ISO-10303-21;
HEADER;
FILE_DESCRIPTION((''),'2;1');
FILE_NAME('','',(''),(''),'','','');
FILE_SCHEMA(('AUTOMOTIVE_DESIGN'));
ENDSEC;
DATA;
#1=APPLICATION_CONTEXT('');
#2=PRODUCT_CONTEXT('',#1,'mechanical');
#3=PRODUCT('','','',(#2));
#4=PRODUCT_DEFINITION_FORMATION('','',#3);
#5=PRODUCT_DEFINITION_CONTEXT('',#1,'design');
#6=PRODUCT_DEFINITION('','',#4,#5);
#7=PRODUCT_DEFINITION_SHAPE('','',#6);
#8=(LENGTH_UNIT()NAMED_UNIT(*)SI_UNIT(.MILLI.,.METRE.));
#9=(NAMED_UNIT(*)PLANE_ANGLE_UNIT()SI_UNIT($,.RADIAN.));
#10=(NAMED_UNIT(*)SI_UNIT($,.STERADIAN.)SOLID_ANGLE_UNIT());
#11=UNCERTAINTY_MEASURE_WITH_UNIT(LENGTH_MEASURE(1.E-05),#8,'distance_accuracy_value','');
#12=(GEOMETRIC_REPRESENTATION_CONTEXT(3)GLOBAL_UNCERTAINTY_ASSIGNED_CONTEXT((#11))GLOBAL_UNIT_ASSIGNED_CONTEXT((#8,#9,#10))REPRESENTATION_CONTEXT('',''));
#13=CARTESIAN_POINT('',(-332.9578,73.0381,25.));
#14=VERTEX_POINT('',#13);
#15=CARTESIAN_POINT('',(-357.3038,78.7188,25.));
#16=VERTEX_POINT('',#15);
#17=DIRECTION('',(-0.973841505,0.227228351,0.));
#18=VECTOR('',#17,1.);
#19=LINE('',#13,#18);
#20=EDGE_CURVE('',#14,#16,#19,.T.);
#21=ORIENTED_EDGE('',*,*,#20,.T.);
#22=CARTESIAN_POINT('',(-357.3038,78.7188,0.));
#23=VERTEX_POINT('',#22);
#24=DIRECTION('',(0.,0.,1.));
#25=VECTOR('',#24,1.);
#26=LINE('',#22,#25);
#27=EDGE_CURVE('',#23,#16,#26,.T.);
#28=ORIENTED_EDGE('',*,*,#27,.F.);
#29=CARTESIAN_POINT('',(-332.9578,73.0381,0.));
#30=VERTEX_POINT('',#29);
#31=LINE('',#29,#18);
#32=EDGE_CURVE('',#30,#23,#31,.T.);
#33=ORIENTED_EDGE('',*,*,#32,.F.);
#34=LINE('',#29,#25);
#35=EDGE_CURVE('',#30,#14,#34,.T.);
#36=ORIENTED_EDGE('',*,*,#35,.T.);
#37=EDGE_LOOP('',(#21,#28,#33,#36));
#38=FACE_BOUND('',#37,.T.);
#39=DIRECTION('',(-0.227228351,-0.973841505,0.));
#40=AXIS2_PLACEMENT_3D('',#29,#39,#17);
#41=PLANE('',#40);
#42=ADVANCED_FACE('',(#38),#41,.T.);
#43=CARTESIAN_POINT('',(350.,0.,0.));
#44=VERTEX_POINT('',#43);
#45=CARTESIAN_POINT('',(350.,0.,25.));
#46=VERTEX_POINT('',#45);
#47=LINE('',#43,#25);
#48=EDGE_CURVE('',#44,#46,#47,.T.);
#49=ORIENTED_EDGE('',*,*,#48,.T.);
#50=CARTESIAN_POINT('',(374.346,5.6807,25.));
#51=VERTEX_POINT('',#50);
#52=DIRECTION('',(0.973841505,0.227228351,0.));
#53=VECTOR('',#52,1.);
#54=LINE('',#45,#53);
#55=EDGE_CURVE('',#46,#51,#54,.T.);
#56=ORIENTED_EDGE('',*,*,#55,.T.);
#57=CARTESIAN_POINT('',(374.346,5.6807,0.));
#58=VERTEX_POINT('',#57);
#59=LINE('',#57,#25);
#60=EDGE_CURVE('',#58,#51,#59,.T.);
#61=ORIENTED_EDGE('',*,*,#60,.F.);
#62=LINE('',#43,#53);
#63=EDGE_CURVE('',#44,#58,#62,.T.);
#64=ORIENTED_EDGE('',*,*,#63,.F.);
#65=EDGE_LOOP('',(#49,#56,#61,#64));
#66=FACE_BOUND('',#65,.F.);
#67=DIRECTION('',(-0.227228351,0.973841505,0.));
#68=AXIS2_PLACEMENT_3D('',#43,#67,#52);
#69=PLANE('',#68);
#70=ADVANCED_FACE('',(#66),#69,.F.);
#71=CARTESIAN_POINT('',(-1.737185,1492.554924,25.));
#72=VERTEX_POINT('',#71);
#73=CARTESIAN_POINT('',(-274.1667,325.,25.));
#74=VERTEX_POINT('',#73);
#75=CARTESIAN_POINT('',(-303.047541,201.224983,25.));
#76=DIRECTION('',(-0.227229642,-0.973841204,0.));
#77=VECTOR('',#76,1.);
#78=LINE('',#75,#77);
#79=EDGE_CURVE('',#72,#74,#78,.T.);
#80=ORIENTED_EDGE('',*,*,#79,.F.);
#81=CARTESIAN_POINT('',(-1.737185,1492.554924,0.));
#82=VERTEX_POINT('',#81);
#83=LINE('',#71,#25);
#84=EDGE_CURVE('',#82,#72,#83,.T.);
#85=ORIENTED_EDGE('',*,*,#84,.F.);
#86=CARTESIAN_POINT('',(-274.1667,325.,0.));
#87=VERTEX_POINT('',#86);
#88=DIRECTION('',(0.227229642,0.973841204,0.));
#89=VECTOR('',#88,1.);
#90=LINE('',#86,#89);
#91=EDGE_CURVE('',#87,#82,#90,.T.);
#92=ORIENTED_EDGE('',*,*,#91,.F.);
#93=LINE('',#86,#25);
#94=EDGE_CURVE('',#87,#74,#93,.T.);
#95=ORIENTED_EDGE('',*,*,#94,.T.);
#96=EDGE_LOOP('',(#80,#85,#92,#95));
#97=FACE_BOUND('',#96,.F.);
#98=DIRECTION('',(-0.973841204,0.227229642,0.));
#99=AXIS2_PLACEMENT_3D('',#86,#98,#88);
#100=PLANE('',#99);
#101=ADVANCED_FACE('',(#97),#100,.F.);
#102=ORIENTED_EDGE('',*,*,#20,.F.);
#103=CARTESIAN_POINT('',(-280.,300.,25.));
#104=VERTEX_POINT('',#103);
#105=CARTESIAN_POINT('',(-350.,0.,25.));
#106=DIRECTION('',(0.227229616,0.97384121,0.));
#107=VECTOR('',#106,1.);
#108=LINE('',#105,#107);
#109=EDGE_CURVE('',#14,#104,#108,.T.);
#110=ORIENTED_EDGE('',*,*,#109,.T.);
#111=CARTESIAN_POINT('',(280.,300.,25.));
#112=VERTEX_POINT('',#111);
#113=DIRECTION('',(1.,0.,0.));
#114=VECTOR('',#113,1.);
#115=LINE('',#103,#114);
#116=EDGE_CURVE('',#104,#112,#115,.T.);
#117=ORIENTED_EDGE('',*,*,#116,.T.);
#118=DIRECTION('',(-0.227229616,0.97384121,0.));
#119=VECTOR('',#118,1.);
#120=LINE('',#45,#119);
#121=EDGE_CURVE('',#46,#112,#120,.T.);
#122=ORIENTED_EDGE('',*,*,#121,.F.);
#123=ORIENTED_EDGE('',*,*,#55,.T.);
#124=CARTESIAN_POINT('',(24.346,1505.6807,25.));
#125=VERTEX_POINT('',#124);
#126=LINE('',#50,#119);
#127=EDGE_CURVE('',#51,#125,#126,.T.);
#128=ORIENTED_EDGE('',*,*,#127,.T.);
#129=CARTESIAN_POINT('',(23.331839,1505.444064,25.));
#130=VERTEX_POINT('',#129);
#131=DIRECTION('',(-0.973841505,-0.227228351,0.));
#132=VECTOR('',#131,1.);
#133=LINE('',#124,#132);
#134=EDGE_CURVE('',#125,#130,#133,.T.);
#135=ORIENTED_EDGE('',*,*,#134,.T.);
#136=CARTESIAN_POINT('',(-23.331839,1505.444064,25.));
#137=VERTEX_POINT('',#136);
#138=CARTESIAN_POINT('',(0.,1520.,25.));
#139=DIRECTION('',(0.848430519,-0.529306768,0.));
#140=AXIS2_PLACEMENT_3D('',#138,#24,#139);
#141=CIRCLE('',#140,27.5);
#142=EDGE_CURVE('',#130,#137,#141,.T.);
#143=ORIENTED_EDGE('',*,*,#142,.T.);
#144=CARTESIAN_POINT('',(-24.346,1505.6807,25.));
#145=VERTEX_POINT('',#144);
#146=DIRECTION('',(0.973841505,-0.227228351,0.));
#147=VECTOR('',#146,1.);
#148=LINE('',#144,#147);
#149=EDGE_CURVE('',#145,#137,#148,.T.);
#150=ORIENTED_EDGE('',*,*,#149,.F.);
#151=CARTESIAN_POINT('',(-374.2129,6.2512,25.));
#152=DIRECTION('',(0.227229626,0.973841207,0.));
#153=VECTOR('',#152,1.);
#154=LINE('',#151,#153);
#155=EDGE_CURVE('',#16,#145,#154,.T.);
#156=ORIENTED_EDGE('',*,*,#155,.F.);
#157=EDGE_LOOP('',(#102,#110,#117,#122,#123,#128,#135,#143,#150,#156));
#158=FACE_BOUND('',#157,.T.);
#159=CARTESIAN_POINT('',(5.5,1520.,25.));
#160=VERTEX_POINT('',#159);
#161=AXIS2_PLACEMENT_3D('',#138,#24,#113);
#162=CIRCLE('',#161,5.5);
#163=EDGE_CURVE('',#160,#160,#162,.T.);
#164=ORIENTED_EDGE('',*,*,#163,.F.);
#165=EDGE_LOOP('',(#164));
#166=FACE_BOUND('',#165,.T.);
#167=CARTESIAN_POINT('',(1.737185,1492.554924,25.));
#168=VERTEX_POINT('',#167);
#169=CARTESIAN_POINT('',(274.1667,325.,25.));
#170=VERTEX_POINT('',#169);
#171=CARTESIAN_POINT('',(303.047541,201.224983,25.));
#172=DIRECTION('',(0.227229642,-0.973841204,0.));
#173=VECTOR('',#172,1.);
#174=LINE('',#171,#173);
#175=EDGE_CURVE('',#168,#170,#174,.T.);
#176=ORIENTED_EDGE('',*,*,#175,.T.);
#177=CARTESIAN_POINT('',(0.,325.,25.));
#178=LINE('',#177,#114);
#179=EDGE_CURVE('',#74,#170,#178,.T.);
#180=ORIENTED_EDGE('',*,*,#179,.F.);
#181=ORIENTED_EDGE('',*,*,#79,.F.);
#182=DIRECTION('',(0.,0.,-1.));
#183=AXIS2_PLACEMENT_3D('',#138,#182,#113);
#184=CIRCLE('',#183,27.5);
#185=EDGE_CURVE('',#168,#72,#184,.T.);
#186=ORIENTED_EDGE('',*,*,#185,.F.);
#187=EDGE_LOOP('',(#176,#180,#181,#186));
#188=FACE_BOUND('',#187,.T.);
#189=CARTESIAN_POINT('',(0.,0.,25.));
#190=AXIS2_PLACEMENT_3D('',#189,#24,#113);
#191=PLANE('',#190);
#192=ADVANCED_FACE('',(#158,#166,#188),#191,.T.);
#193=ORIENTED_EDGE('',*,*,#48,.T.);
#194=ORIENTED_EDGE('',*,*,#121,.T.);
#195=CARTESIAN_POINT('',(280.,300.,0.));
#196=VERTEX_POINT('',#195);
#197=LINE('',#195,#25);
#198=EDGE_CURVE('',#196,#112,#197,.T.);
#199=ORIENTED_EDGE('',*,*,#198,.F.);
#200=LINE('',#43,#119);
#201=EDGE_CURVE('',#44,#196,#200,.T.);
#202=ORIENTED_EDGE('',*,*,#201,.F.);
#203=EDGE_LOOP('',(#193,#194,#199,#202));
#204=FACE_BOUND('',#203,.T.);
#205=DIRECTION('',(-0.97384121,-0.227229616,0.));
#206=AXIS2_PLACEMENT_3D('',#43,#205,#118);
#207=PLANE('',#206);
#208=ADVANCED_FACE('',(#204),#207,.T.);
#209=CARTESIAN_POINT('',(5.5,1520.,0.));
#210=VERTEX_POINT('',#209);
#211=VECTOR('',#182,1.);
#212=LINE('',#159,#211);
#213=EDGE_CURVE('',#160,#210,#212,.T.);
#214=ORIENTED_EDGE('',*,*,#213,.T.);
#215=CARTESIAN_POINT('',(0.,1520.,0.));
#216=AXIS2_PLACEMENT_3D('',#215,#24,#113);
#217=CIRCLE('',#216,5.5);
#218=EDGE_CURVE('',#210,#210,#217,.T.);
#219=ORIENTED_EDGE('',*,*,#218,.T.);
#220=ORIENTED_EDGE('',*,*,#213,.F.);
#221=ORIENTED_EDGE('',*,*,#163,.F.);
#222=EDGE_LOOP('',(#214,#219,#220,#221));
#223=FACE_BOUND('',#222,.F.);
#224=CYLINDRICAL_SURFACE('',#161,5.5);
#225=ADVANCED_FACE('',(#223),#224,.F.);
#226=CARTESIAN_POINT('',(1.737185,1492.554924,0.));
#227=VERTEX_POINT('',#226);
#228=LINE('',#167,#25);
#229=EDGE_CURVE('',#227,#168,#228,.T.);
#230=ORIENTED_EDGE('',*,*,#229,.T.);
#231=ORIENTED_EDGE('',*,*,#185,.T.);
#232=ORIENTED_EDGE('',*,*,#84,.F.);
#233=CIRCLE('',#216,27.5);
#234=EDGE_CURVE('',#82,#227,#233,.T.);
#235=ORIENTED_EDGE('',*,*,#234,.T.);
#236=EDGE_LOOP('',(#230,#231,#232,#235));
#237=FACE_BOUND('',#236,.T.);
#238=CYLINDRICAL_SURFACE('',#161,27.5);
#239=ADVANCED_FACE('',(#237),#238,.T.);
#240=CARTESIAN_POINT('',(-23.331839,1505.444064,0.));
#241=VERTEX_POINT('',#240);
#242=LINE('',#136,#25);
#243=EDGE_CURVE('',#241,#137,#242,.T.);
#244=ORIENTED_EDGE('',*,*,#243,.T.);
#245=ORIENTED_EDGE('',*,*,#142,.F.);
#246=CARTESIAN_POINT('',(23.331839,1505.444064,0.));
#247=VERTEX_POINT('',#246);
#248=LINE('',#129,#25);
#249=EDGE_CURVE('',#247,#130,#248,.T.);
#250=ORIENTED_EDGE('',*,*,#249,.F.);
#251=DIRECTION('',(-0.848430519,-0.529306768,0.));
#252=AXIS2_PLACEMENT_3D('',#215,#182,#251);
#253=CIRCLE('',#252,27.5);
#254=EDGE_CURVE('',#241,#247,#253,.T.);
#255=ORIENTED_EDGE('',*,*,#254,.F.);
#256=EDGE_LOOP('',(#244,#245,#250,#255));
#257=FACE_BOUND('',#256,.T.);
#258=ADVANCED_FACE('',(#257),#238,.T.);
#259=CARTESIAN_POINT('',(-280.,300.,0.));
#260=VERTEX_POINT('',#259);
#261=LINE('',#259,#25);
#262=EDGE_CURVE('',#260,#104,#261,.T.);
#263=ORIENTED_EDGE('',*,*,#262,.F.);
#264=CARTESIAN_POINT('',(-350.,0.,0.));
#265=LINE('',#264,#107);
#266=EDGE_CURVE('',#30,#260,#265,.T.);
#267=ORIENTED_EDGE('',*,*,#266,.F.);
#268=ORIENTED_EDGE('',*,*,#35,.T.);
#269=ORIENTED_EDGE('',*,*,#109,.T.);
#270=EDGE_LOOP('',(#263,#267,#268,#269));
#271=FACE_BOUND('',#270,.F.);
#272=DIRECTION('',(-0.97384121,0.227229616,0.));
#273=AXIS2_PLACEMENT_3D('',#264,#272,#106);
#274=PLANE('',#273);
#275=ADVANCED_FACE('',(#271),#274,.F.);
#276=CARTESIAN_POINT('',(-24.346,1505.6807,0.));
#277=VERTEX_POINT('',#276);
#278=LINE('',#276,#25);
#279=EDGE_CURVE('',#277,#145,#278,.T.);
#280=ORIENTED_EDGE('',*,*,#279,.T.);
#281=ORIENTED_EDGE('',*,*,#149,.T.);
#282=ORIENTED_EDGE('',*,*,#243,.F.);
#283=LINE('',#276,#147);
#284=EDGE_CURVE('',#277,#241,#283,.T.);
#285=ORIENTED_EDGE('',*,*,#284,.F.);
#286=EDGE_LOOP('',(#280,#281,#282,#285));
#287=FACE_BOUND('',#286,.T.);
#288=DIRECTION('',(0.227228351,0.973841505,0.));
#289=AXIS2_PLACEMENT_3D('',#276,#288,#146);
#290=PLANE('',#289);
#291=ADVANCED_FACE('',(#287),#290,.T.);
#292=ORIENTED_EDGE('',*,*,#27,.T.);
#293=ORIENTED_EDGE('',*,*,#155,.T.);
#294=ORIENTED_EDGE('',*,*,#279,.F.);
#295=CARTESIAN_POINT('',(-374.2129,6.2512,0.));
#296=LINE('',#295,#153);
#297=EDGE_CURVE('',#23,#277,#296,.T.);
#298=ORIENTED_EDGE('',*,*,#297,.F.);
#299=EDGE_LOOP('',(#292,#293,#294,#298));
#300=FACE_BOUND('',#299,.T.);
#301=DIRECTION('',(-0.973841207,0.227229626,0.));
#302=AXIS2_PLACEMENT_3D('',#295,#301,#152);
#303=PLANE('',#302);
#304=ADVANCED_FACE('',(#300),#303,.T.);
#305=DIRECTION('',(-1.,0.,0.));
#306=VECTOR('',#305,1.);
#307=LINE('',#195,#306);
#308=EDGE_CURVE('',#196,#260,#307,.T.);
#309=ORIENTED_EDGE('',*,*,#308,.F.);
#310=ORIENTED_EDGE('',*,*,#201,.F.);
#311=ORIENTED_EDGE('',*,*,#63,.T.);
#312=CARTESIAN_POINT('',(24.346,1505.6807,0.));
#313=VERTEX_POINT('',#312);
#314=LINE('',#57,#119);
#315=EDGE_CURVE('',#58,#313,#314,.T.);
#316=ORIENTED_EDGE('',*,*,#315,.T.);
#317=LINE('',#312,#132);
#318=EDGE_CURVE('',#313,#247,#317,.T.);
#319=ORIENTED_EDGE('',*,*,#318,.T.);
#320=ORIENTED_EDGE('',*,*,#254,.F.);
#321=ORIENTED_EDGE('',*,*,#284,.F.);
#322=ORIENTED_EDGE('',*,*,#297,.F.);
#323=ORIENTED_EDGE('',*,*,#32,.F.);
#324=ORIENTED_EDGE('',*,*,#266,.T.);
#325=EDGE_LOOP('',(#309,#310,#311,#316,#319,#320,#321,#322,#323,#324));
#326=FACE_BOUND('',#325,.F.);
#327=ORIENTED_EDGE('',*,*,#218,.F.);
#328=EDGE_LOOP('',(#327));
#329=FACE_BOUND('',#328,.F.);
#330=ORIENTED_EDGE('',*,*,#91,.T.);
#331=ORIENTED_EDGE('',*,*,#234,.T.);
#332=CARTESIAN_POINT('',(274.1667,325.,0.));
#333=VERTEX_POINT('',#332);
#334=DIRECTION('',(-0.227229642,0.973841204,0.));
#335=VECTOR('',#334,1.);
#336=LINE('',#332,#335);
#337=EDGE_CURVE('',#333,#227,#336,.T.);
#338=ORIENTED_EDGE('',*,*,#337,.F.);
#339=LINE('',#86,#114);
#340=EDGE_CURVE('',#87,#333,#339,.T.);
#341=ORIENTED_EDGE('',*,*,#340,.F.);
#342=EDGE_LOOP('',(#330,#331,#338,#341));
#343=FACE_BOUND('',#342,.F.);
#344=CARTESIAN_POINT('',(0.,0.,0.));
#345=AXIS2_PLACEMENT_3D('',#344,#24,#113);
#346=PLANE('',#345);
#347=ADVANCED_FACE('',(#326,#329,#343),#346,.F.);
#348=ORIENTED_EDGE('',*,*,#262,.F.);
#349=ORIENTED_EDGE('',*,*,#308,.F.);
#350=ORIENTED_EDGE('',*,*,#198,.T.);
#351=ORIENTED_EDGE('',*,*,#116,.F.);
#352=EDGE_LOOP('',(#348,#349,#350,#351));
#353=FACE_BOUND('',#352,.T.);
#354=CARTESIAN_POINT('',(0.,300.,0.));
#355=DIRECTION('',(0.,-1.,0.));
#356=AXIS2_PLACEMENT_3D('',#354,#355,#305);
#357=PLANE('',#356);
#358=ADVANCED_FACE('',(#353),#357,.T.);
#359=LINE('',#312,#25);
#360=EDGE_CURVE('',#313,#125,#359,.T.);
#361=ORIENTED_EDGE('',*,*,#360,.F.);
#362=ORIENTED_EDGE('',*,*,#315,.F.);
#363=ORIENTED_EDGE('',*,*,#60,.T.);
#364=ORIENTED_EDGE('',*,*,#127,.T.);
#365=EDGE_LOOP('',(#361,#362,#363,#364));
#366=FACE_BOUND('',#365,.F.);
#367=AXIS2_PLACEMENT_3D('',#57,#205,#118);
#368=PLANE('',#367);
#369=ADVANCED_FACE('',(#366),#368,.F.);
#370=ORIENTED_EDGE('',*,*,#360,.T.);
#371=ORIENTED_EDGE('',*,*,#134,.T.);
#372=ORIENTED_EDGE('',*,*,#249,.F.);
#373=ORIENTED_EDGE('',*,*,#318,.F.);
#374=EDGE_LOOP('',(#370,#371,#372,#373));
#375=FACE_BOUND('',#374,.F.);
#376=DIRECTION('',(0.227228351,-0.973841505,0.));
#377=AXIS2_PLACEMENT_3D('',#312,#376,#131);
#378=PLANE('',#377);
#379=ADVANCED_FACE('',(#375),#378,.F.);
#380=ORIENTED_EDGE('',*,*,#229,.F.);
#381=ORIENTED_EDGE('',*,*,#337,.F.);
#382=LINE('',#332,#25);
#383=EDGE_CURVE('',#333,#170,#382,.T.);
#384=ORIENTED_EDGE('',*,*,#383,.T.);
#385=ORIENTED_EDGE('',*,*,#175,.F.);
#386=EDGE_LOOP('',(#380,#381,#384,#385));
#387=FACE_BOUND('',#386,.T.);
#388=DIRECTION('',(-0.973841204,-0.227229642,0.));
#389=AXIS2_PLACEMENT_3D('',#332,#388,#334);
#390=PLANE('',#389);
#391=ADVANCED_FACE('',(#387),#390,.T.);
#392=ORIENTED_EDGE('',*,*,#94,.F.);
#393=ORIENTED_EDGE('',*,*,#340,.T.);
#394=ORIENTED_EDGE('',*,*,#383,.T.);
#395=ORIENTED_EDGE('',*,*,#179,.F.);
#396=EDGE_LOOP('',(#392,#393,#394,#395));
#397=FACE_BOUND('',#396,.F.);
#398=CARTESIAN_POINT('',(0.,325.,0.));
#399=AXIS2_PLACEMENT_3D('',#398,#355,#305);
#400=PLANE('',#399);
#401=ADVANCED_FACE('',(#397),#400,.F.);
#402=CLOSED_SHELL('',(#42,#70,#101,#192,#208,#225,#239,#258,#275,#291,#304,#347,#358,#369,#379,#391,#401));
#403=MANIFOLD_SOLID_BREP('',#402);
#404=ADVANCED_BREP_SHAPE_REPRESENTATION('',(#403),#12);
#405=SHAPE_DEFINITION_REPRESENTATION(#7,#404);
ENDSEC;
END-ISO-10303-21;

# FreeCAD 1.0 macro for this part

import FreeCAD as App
import Part
import Sketcher

V = App.Vector
Q = App.Units.Quantity

doc = App.newDocument("Part")
body = doc.addObject("PartDesign::Body", "Body")

sketch1 = doc.addObject("Sketcher::SketchObject", "Sketch")
body.addObject(sketch1)
sketch1.AttachmentSupport = (doc.XY_Plane, [""])
sketch1.MapMode = "FlatFace"
sketch1.addGeometry([
    Part.LineSegment(V(-374.2129, 6.2512, 0), V(-350, 0, 0)),
    Part.LineSegment(V(-350, 0, 0), V(-280, 300, 0)),
    Part.LineSegment(V(-280, 300, 0), V(280, 300, 0)),
    Part.LineSegment(V(280, 300, 0), V(350, 0, 0)),
    Part.LineSegment(V(350, 0, 0), V(374.346, 5.6807, 0)),
    Part.LineSegment(V(374.346, 5.6807, 0), V(24.346, 1505.6807, 0)),
    Part.LineSegment(V(24.346, 1505.6807, 0), V(0, 1500, 0)),
    Part.LineSegment(V(0, 1500, 0), V(-24.346, 1505.6807, 0)),
    Part.LineSegment(V(-24.346, 1505.6807, 0), V(-374.2129, 6.2512, 0)),
], False)
sketch1.addConstraint([
    Sketcher.Constraint("Coincident", 0, 2, 1, 1),
    Sketcher.Constraint("Coincident", 1, 2, 2, 1),
    Sketcher.Constraint("Coincident", 2, 2, 3, 1),
    Sketcher.Constraint("Coincident", 3, 2, 4, 1),
    Sketcher.Constraint("Coincident", 4, 2, 5, 1),
    Sketcher.Constraint("Coincident", 5, 2, 6, 1),
    Sketcher.Constraint("Coincident", 6, 2, 7, 1),
    Sketcher.Constraint("Coincident", 7, 2, 8, 1),
    Sketcher.Constraint("Coincident", 8, 2, 0, 1),
    Sketcher.Constraint("Horizontal", 2),
    Sketcher.Constraint("Symmetric", 0, 2, 3, 2, -1, 1),
    Sketcher.Constraint("Symmetric", 5, 2, 7, 2, -2),
    Sketcher.Constraint("PointOnObject", 0, 2, -1),
    Sketcher.Constraint("PointOnObject", 6, 2, -2),
    Sketcher.Constraint("Perpendicular", 3, 4),
    Sketcher.Constraint("Perpendicular", 4, 5),
    Sketcher.Constraint("Perpendicular", 5, 6),
    Sketcher.Constraint("Perpendicular", 1, 7),
    Sketcher.Constraint("Perpendicular", 7, 8),
    Sketcher.Constraint("Equal", 4, 6),
    Sketcher.Constraint("Distance", 4, Q("25 mm")),
    Sketcher.Constraint("DistanceY", -1, 1, 1, 2, Q("300 mm")),
    Sketcher.Constraint("DistanceY", -1, 1, 6, 2, Q("1500 mm")),
    Sketcher.Constraint("DistanceX", 0, 2, 3, 2, Q("700 mm")),
    Sketcher.Constraint("DistanceX", 8, 2, -1, 1, Q("374.213 mm")),
])
pad1 = doc.addObject("PartDesign::Pad", "Pad")
body.addObject(pad1)
pad1.Profile = sketch1
pad1.Length = 25

sketch2 = doc.addObject("Sketcher::SketchObject", "Sketch001")
body.addObject(sketch2)
sketch2.AttachmentSupport = (doc.XY_Plane, [""])
sketch2.MapMode = "FlatFace"
sketch2.addGeometry([
    Part.LineSegment(V(-274.1667, 325, 0), V(274.1667, 325, 0)),
    Part.LineSegment(V(274.1667, 325, 0), V(0, 1500, 0)),
    Part.LineSegment(V(0, 1500, 0), V(-274.1667, 325, 0)),
], False)
sketch2.addConstraint([
    Sketcher.Constraint("Coincident", 0, 2, 1, 1),
    Sketcher.Constraint("Coincident", 1, 2, 2, 1),
    Sketcher.Constraint("Coincident", 2, 2, 0, 1),
    Sketcher.Constraint("Horizontal", 0),
    Sketcher.Constraint("PointOnObject", 1, 2, -2),
    Sketcher.Constraint("Equal", 1, 2),
    Sketcher.Constraint("DistanceY", -1, 1, 1, 2, Q("1500 mm")),
    Sketcher.Constraint("DistanceY", -1, 1, 0, 2, Q("325 mm")),
    Sketcher.Constraint("DistanceX", 0, 1, 0, 2, Q("548.3334 mm")),
])
pocket1 = doc.addObject("PartDesign::Pocket", "Pocket")
body.addObject(pocket1)
pocket1.Profile = sketch2
pocket1.Type = "ThroughAll"
pocket1.Reversed = True

sketch3 = doc.addObject("Sketcher::SketchObject", "Sketch002")
body.addObject(sketch3)
sketch3.AttachmentSupport = (doc.XY_Plane, [""])
sketch3.MapMode = "FlatFace"
sketch3.AttachmentOffset = App.Placement(V(0, 0, 25), App.Rotation())
sketch3.addGeometry([
    Part.Circle(V(0, 1520, 0), V(0, 0, 1), 27.5),
    Part.Circle(V(0, 1520, 0), V(0, 0, 1), 5.5),
], False)
sketch3.addConstraint([
    Sketcher.Constraint("Coincident", 1, 3, 0, 3),
    Sketcher.Constraint("PointOnObject", 0, 3, -2),
    Sketcher.Constraint("Diameter", 0, Q("55 mm")),
    Sketcher.Constraint("Diameter", 1, Q("11 mm")),
    Sketcher.Constraint("DistanceY", -1, 1, 0, 3, Q("1520 mm")),
])
pad2 = doc.addObject("PartDesign::Pad", "Pad001")
body.addObject(pad2)
pad2.Profile = sketch3
pad2.Length = 25
pad2.Reversed = True

sketch4 = doc.addObject("Sketcher::SketchObject", "Sketch003")
body.addObject(sketch4)
sketch4.AttachmentSupport = (doc.XY_Plane, [""])
sketch4.MapMode = "FlatFace"
sketch4.addGeometry([
    Part.LineSegment(V(-374.2129, 6.2512, 0), V(-357.303793, 78.718798, 0)),
    Part.LineSegment(V(-357.3038, 78.7188, 0), V(-332.9578, 73.0381, 0)),
    Part.LineSegment(V(-332.957778, 73.038095, 0), V(-350, 0, 0)),
    Part.LineSegment(V(-350, 0, 0), V(-374.2129, 6.2512, 0)),
], False)
sketch4.addConstraint([
    Sketcher.Constraint("Coincident", 0, 2, 1, 1),
    Sketcher.Constraint("Coincident", 1, 2, 2, 1),
    Sketcher.Constraint("Coincident", 2, 2, 3, 1),
    Sketcher.Constraint("Coincident", 3, 2, 0, 1),
    Sketcher.Constraint("PointOnObject", 2, 2, -1),
    Sketcher.Constraint("Perpendicular", 0, 1),
    Sketcher.Constraint("Perpendicular", 1, 2),
    Sketcher.Constraint("Distance", 2, Q("75 mm")),
    Sketcher.Constraint("Distance", 1, Q("25 mm")),
    Sketcher.Constraint("DistanceX", 2, 2, -1, 1, Q("350 mm")),
    Sketcher.Constraint("DistanceY", -1, 1, 1, 2, Q("73.038 mm")),
    Sketcher.Constraint("DistanceX", 3, 2, -1, 1, Q("374.213 mm")),
])
pocket2 = doc.addObject("PartDesign::Pocket", "Pocket001")
body.addObject(pocket2)
pocket2.Profile = sketch4
pocket2.Length = 25
pocket2.Reversed = True

doc.recompute()
